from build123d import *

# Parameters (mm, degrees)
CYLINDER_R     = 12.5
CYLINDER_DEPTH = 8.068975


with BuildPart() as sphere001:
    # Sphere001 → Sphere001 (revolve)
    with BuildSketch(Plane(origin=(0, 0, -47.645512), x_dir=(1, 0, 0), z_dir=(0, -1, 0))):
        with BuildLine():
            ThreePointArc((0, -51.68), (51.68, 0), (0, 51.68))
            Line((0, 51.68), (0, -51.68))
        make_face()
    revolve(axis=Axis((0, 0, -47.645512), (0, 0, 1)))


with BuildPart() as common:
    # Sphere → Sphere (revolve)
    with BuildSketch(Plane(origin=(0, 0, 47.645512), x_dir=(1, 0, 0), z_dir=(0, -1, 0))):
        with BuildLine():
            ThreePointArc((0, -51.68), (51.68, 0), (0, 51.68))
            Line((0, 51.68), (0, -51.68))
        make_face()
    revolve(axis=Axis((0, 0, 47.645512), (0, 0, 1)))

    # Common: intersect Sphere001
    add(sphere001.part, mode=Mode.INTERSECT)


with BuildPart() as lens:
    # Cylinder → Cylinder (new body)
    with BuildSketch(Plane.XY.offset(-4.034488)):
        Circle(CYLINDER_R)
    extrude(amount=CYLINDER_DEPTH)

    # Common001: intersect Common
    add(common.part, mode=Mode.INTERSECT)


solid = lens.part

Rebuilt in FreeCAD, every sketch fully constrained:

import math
import FreeCAD as App
import Part
import Sketcher

V = App.Vector
Q = App.Units.Quantity

doc = App.newDocument("Part")
body = doc.addObject("PartDesign::Body", "Body")

# Sketch on XZ plane
sketch1 = body.newObject("Sketcher::SketchObject", "Sketch")
sketch1.AttachmentSupport = (doc.getObject("XZ_Plane"), [""])
sketch1.MapMode = "FlatFace"
sketch1.addGeometry([
    Part.ArcOfCircle(Part.Circle(V(0, -48, 0), V(0, 0, 1), 52), math.radians(-90), math.radians(90)),
    Part.LineSegment(V(0, 4, 0), V(0, -99, 0)),
], False)
sketch1.addConstraint([
    Sketcher.Constraint("Coincident", 0, 1, 1, 2),
    Sketcher.Constraint("Coincident", 1, 1, 0, 2),
    Sketcher.Constraint("Vertical", 1),
    Sketcher.Constraint("PointOnObject", 0, 3, -2),
    Sketcher.Constraint("PointOnObject", 0, 1, -2),
    Sketcher.Constraint("Radius", 0, Q("51.68 mm")),
    Sketcher.Constraint("DistanceY", 0, 3, -1, 1, Q("47.645512 mm")),
])
revolution = body.newObject("PartDesign::Revolution", "Revolution")
revolution.Profile = sketch1
revolution.ReferenceAxis = (sketch1, ["V_Axis"])
revolution.Angle = 360
body2 = doc.addObject("PartDesign::Body", "Body001")

# Sketch on XZ plane
sketch2 = body2.newObject("Sketcher::SketchObject", "Sketch001")
sketch2.AttachmentSupport = (doc.getObject("XZ_Plane001"), [""])
sketch2.MapMode = "FlatFace"
sketch2.addGeometry([
    Part.ArcOfCircle(Part.Circle(V(0, 48, 0), V(0, 0, 1), 52), math.radians(-90), math.radians(90)),
    Part.LineSegment(V(0, 99, 0), V(0, -4, 0)),
], False)
sketch2.addConstraint([
    Sketcher.Constraint("Coincident", 0, 1, 1, 2),
    Sketcher.Constraint("Coincident", 1, 1, 0, 2),
    Sketcher.Constraint("Vertical", 1),
    Sketcher.Constraint("PointOnObject", 0, 3, -2),
    Sketcher.Constraint("PointOnObject", 0, 1, -2),
    Sketcher.Constraint("Radius", 0, Q("51.68 mm")),
    Sketcher.Constraint("DistanceY", -1, 1, 0, 3, Q("47.645512 mm")),
])
revolution2 = body2.newObject("PartDesign::Revolution", "Revolution001")
revolution2.Profile = sketch2
revolution2.ReferenceAxis = (sketch2, ["V_Axis"])
revolution2.Angle = 360
doc.recompute()

boolean = body2.newObject("PartDesign::Boolean", "Boolean")
boolean.Type = "Common"
boolean.addObjects([body])
body3 = doc.addObject("PartDesign::Body", "Body002")

# Sketch on XY plane
sketch3 = body3.newObject("Sketcher::SketchObject", "Sketch002")
sketch3.AttachmentSupport = (doc.getObject("XY_Plane002"), [""])
sketch3.MapMode = "FlatFace"
sketch3.AttachmentOffset = App.Placement(V(0, 0, -4.034488), App.Rotation())
sketch3.addGeometry(Part.Circle(V(0, 0, 0), V(0, 0, 1), 12), False)
sketch3.addConstraint([
    Sketcher.Constraint("Coincident", 0, 3, -1, 1),
    Sketcher.Constraint("Diameter", 0, Q("25 mm")),
])
pad1 = body3.newObject("PartDesign::Pad", "Pad")
pad1.Profile = sketch3
pad1.Length = 8.068975
doc.recompute()

boolean2 = body3.newObject("PartDesign::Boolean", "Boolean001")
boolean2.Type = "Common"
boolean2.addObjects([body2])

doc.recompute()
